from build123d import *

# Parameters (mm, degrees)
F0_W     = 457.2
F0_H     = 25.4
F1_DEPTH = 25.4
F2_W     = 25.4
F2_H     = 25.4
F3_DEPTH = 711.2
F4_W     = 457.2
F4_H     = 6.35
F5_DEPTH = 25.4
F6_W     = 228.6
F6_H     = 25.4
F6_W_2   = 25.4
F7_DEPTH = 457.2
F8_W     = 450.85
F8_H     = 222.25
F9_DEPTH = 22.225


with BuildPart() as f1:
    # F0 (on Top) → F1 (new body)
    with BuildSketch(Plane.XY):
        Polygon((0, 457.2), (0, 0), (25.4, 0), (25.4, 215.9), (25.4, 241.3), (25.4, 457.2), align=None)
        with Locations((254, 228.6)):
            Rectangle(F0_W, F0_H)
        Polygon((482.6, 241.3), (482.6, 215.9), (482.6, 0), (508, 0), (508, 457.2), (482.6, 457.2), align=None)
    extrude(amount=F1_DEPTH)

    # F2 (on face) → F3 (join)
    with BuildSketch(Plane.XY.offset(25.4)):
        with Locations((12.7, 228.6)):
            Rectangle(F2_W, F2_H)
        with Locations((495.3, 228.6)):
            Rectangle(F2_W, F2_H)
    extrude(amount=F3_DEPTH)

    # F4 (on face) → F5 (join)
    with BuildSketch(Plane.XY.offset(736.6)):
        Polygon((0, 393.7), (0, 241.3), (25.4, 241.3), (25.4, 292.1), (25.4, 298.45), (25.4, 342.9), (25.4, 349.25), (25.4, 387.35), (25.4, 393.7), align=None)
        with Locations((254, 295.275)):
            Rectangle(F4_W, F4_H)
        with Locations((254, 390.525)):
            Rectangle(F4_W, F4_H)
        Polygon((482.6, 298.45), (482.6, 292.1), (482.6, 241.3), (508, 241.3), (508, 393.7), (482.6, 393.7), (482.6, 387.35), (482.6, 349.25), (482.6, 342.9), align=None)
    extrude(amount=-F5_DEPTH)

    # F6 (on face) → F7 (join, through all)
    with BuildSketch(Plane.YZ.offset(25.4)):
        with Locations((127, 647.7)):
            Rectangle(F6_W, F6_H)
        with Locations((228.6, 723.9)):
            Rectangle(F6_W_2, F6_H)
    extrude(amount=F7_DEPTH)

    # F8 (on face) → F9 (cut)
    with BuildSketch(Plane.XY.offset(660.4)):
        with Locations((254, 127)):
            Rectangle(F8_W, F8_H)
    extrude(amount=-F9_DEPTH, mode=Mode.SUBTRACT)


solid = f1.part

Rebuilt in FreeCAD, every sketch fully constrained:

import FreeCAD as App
import Part
import Sketcher
Q = App.Units.Quantity

doc = App.newDocument("Part")
body = doc.addObject("PartDesign::Body", "Body")

sketch1 = body.newObject("Sketcher::SketchObject", "Sketch")
sketch1.AttachmentSupport = (doc.getObject("XY_Plane"), [""])
sketch1.MapMode = "FlatFace"
sketch1.addGeometry([
    Part.LineSegment(App.Vector(0, 457, 0), App.Vector(0, 0, 0)),
    Part.LineSegment(App.Vector(0, 0, 0), App.Vector(25, 0, 0)),
    Part.LineSegment(App.Vector(25, 0, 0), App.Vector(25, 216, 0)),
    Part.LineSegment(App.Vector(25, 216, 0), App.Vector(483, 216, 0)),
    Part.LineSegment(App.Vector(483, 216, 0), App.Vector(483, 0, 0)),
    Part.LineSegment(App.Vector(483, 0, 0), App.Vector(508, 0, 0)),
    Part.LineSegment(App.Vector(508, 0, 0), App.Vector(508, 457, 0)),
    Part.LineSegment(App.Vector(508, 457, 0), App.Vector(483, 457, 0)),
    Part.LineSegment(App.Vector(483, 457, 0), App.Vector(483, 241, 0)),
    Part.LineSegment(App.Vector(483, 241, 0), App.Vector(25, 241, 0)),
    Part.LineSegment(App.Vector(25, 241, 0), App.Vector(25, 457, 0)),
    Part.LineSegment(App.Vector(25, 457, 0), App.Vector(0, 457, 0)),
], False)
sketch1.addConstraint([
    Sketcher.Constraint("Coincident", 0, 2, 1, 1),
    Sketcher.Constraint("Coincident", 1, 2, 2, 1),
    Sketcher.Constraint("Coincident", 2, 2, 3, 1),
    Sketcher.Constraint("Coincident", 3, 2, 4, 1),
    Sketcher.Constraint("Coincident", 4, 2, 5, 1),
    Sketcher.Constraint("Coincident", 5, 2, 6, 1),
    Sketcher.Constraint("Coincident", 6, 2, 7, 1),
    Sketcher.Constraint("Coincident", 7, 2, 8, 1),
    Sketcher.Constraint("Coincident", 8, 2, 9, 1),
    Sketcher.Constraint("Coincident", 9, 2, 10, 1),
    Sketcher.Constraint("Coincident", 10, 2, 11, 1),
    Sketcher.Constraint("Coincident", 11, 2, 0, 1),
    Sketcher.Constraint("Vertical", 0),
    Sketcher.Constraint("Horizontal", 1),
    Sketcher.Constraint("Vertical", 2),
    Sketcher.Constraint("Horizontal", 3),
    Sketcher.Constraint("Vertical", 4),
    Sketcher.Constraint("Horizontal", 5),
    Sketcher.Constraint("Vertical", 6),
    Sketcher.Constraint("Horizontal", 7),
    Sketcher.Constraint("Vertical", 8),
    Sketcher.Constraint("Horizontal", 9),
    Sketcher.Constraint("Vertical", 10),
    Sketcher.Constraint("Horizontal", 11),
    Sketcher.Constraint("Coincident", 0, 2, -1, 1),
    Sketcher.Constraint("PointOnObject", 4, 2, -1),
    Sketcher.Constraint("Horizontal", 7, 2, 10, 2),
    Sketcher.Constraint("Vertical", 4, 2, 7, 2),
    Sketcher.Constraint("Vertical", 2, 2, 9, 2),
    Sketcher.Constraint("Equal", 1, 5),
    Sketcher.Constraint("Equal", 9, 0),
    Sketcher.Constraint("Equal", 4, 8),
    Sketcher.Constraint("DistanceX", 1, 1, 1, 2, Q("1 in")),
    Sketcher.Constraint("DistanceX", 3, 1, 3, 2, Q("18 in")),
    Sketcher.Constraint("DistanceY", 2, 1, 2, 2, Q("8.5 in")),
])
pad1 = body.newObject("PartDesign::Pad", "Pad")
pad1.Profile = sketch1
pad1.Length = Q("1 in")

sketch2 = body.newObject("Sketcher::SketchObject", "Sketch001")
sketch2.AttachmentSupport = (doc.getObject("XY_Plane"), [""])
sketch2.MapMode = "FlatFace"
sketch2.AttachmentOffset = App.Placement(App.Vector(0, 0, 1 * 25.4), App.Rotation())
sketch2.addGeometry([
    Part.LineSegment(App.Vector(0, 241, 0), App.Vector(0, 216, 0)),
    Part.LineSegment(App.Vector(0, 216, 0), App.Vector(25, 216, 0)),
    Part.LineSegment(App.Vector(25, 216, 0), App.Vector(25, 241, 0)),
    Part.LineSegment(App.Vector(25, 241, 0), App.Vector(0, 241, 0)),
    Part.LineSegment(App.Vector(483, 241, 0), App.Vector(483, 216, 0)),
    Part.LineSegment(App.Vector(483, 216, 0), App.Vector(508, 216, 0)),
    Part.LineSegment(App.Vector(508, 216, 0), App.Vector(508, 241, 0)),
    Part.LineSegment(App.Vector(508, 241, 0), App.Vector(483, 241, 0)),
], False)
sketch2.addConstraint([
    Sketcher.Constraint("Coincident", 0, 2, 1, 1),
    Sketcher.Constraint("Coincident", 1, 2, 2, 1),
    Sketcher.Constraint("Coincident", 2, 2, 3, 1),
    Sketcher.Constraint("Coincident", 3, 2, 0, 1),
    Sketcher.Constraint("Coincident", 4, 2, 5, 1),
    Sketcher.Constraint("Coincident", 5, 2, 6, 1),
    Sketcher.Constraint("Coincident", 6, 2, 7, 1),
    Sketcher.Constraint("Coincident", 7, 2, 4, 1),
    Sketcher.Constraint("Vertical", 0),
    Sketcher.Constraint("Horizontal", 1),
    Sketcher.Constraint("Vertical", 2),
    Sketcher.Constraint("Horizontal", 3),
    Sketcher.Constraint("Vertical", 4),
    Sketcher.Constraint("Horizontal", 5),
    Sketcher.Constraint("Vertical", 6),
    Sketcher.Constraint("Horizontal", 7),
    Sketcher.Constraint("PointOnObject", 0, 2, -2),
    Sketcher.Constraint("Horizontal", 1, 2, 4, 2),
    Sketcher.Constraint("Horizontal", 3, 2, 6, 2),
    Sketcher.Constraint("Equal", 3, 5),
    Sketcher.Constraint("Equal", 7, 0),
    Sketcher.Constraint("DistanceX", 1, 1, 1, 2, Q("1 in")),
    Sketcher.Constraint("DistanceX", -1, 1, 4, 2, Q("19 in")),
    Sketcher.Constraint("DistanceY", -1, 1, 0, 2, Q("8.5 in")),
])
pad2 = body.newObject("PartDesign::Pad", "Pad001")
pad2.Profile = sketch2
pad2.Length = Q("28 in")

sketch3 = body.newObject("Sketcher::SketchObject", "Sketch002")
sketch3.AttachmentSupport = (doc.getObject("XY_Plane"), [""])
sketch3.MapMode = "FlatFace"
sketch3.AttachmentOffset = App.Placement(App.Vector(0, 0, 29 * 25.4), App.Rotation())
sketch3.addGeometry([
    Part.LineSegment(App.Vector(0, 394, 0), App.Vector(0, 241, 0)),
    Part.LineSegment(App.Vector(0, 241, 0), App.Vector(25, 241, 0)),
    Part.LineSegment(App.Vector(25, 241, 0), App.Vector(25, 292, 0)),
    Part.LineSegment(App.Vector(25, 292, 0), App.Vector(483, 292, 0)),
    Part.LineSegment(App.Vector(483, 292, 0), App.Vector(483, 241, 0)),
    Part.LineSegment(App.Vector(483, 241, 0), App.Vector(508, 241, 0)),
    Part.LineSegment(App.Vector(508, 241, 0), App.Vector(508, 394, 0)),
    Part.LineSegment(App.Vector(508, 394, 0), App.Vector(0, 394, 0)),
    Part.LineSegment(App.Vector(483, 298, 0), App.Vector(25, 298, 0)),
    Part.LineSegment(App.Vector(25, 298, 0), App.Vector(25, 387, 0)),
    Part.LineSegment(App.Vector(25, 387, 0), App.Vector(483, 387, 0)),
    Part.LineSegment(App.Vector(483, 387, 0), App.Vector(483, 298, 0)),
], False)
sketch3.addConstraint([
    Sketcher.Constraint("Coincident", 0, 2, 1, 1),
    Sketcher.Constraint("Coincident", 1, 2, 2, 1),
    Sketcher.Constraint("Coincident", 2, 2, 3, 1),
    Sketcher.Constraint("Coincident", 3, 2, 4, 1),
    Sketcher.Constraint("Coincident", 4, 2, 5, 1),
    Sketcher.Constraint("Coincident", 5, 2, 6, 1),
    Sketcher.Constraint("Coincident", 6, 2, 7, 1),
    Sketcher.Constraint("Coincident", 7, 2, 0, 1),
    Sketcher.Constraint("Coincident", 8, 2, 9, 1),
    Sketcher.Constraint("Coincident", 9, 2, 10, 1),
    Sketcher.Constraint("Coincident", 10, 2, 11, 1),
    Sketcher.Constraint("Coincident", 11, 2, 8, 1),
    Sketcher.Constraint("Vertical", 0),
    Sketcher.Constraint("Horizontal", 1),
    Sketcher.Constraint("Vertical", 2),
    Sketcher.Constraint("Horizontal", 3),
    Sketcher.Constraint("Vertical", 4),
    Sketcher.Constraint("Horizontal", 5),
    Sketcher.Constraint("Vertical", 6),
    Sketcher.Constraint("Horizontal", 7),
    Sketcher.Constraint("Horizontal", 8),
    Sketcher.Constraint("Vertical", 9),
    Sketcher.Constraint("Horizontal", 10),
    Sketcher.Constraint("Vertical", 11),
    Sketcher.Constraint("PointOnObject", 0, 2, -2),
    Sketcher.Constraint("Horizontal", 1, 2, 4, 2),
    Sketcher.Constraint("Vertical", 2, 2, 8, 2),
    Sketcher.Constraint("Vertical", 4, 2, 10, 2),
    Sketcher.Constraint("Equal", 1, 5),
    Sketcher.Constraint("DistanceX", 1, 1, 1, 2, Q("1 in")),
    Sketcher.Constraint("DistanceX", 3, 1, 3, 2, Q("18 in")),
    Sketcher.Constraint("DistanceY", 0, 2, 0, 1, Q("6 in")),
    Sketcher.Constraint("DistanceY", 2, 1, 2, 2, Q("2 in")),
    Sketcher.Constraint("DistanceY", 9, 1, 9, 2, Q("3.5 in")),
    Sketcher.Constraint("DistanceY", -1, 1, 0, 2, Q("9.5 in")),
    Sketcher.Constraint("DistanceY", -1, 1, 8, 2, Q("11.75 in")),
])
pad3 = body.newObject("PartDesign::Pad", "Pad002")
pad3.Profile = sketch3
pad3.Length = Q("1 in")
pad3.Reversed = True

sketch4 = body.newObject("Sketcher::SketchObject", "Sketch003")
sketch4.AttachmentSupport = (doc.getObject("YZ_Plane"), [""])
sketch4.MapMode = "FlatFace"
sketch4.AttachmentOffset = App.Placement(App.Vector(0, 0, 1 * 25.4), App.Rotation())
sketch4.addGeometry([
    Part.LineSegment(App.Vector(13, 660, 0), App.Vector(13, 635, 0)),
    Part.LineSegment(App.Vector(13, 635, 0), App.Vector(241, 635, 0)),
    Part.LineSegment(App.Vector(241, 635, 0), App.Vector(241, 660, 0)),
    Part.LineSegment(App.Vector(241, 660, 0), App.Vector(13, 660, 0)),
    Part.LineSegment(App.Vector(216, 737, 0), App.Vector(216, 711, 0)),
    Part.LineSegment(App.Vector(216, 711, 0), App.Vector(241, 711, 0)),
    Part.LineSegment(App.Vector(241, 711, 0), App.Vector(241, 737, 0)),
    Part.LineSegment(App.Vector(241, 737, 0), App.Vector(216, 737, 0)),
], False)
sketch4.addConstraint([
    Sketcher.Constraint("Coincident", 0, 2, 1, 1),
    Sketcher.Constraint("Coincident", 1, 2, 2, 1),
    Sketcher.Constraint("Coincident", 2, 2, 3, 1),
    Sketcher.Constraint("Coincident", 3, 2, 0, 1),
    Sketcher.Constraint("Coincident", 4, 2, 5, 1),
    Sketcher.Constraint("Coincident", 5, 2, 6, 1),
    Sketcher.Constraint("Coincident", 6, 2, 7, 1),
    Sketcher.Constraint("Coincident", 7, 2, 4, 1),
    Sketcher.Constraint("Vertical", 0),
    Sketcher.Constraint("Horizontal", 1),
    Sketcher.Constraint("Vertical", 2),
    Sketcher.Constraint("Horizontal", 3),
    Sketcher.Constraint("Vertical", 4),
    Sketcher.Constraint("Horizontal", 5),
    Sketcher.Constraint("Vertical", 6),
    Sketcher.Constraint("Horizontal", 7),
    Sketcher.Constraint("Vertical", 2, 2, 5, 2),
    Sketcher.Constraint("Equal", 7, 0),
    Sketcher.Constraint("Equal", 2, 4),
    Sketcher.Constraint("DistanceX", 1, 1, 1, 2, Q("9 in")),
    Sketcher.Constraint("DistanceX", 5, 1, 5, 2, Q("1 in")),
    Sketcher.Constraint("DistanceY", -1, 1, 0, 2, Q("25 in")),
    Sketcher.Constraint("DistanceY", -1, 1, 4, 2, Q("28 in")),
    Sketcher.Constraint("DistanceX", -1, 1, 0, 2, Q("0.5 in")),
])
pad4 = body.newObject("PartDesign::Pad", "Pad003")
pad4.Profile = sketch4
pad4.Length = Q("18 in")

sketch5 = body.newObject("Sketcher::SketchObject", "Sketch004")
sketch5.AttachmentSupport = (doc.getObject("XY_Plane"), [""])
sketch5.MapMode = "FlatFace"
sketch5.AttachmentOffset = App.Placement(App.Vector(0, 0, 26 * 25.4), App.Rotation())
sketch5.addGeometry([
    Part.LineSegment(App.Vector(29, 238, 0), App.Vector(29, 16, 0)),
    Part.LineSegment(App.Vector(29, 16, 0), App.Vector(479, 16, 0)),
    Part.LineSegment(App.Vector(479, 16, 0), App.Vector(479, 238, 0)),
    Part.LineSegment(App.Vector(479, 238, 0), App.Vector(29, 238, 0)),
], False)
sketch5.addConstraint([
    Sketcher.Constraint("Coincident", 0, 2, 1, 1),
    Sketcher.Constraint("Coincident", 1, 2, 2, 1),
    Sketcher.Constraint("Coincident", 2, 2, 3, 1),
    Sketcher.Constraint("Coincident", 3, 2, 0, 1),
    Sketcher.Constraint("Vertical", 0),
    Sketcher.Constraint("Horizontal", 1),
    Sketcher.Constraint("Vertical", 2),
    Sketcher.Constraint("Horizontal", 3),
    Sketcher.Constraint("DistanceX", 1, 1, 1, 2, Q("17.75 in")),
    Sketcher.Constraint("DistanceY", 0, 2, 0, 1, Q("8.75 in")),
    Sketcher.Constraint("DistanceX", -1, 1, 0, 2, Q("1.125 in")),
    Sketcher.Constraint("DistanceY", -1, 1, 0, 2, Q("0.625 in")),
])
pocket1 = body.newObject("PartDesign::Pocket", "Pocket")
pocket1.Profile = sketch5
pocket1.Length = Q("0.875 in")

doc.recompute()
